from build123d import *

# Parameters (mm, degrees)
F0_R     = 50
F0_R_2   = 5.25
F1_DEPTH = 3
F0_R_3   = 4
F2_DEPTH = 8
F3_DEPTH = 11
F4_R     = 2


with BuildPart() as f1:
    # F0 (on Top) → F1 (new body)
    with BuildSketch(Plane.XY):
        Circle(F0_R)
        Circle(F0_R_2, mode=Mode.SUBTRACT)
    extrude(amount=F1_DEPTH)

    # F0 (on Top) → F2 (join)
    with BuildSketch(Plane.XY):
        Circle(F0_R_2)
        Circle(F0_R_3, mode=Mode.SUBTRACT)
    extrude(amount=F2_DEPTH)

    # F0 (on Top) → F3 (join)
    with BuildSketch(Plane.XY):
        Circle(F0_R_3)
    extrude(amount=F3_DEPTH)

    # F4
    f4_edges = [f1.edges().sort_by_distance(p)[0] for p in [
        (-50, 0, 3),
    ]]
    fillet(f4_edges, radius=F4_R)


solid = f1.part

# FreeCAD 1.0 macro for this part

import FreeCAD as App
import Part
import Sketcher
from FreeCAD import Vector
Q = App.Units.Quantity


def edges_at(feature, points):
    """Names of the edges that pass closest to the given points."""
    edges = feature.Shape.Edges
    near = lambda p: min(range(len(edges)), key=lambda i: edges[i].distToShape(Part.Vertex(*p))[0])
    return sorted({f"Edge{near(p) + 1}" for p in points})

doc = App.newDocument("Part")
body = doc.addObject("PartDesign::Body", "Body")

# Sketch on XY plane
sketch1 = doc.addObject("Sketcher::SketchObject", "Sketch")
body.addObject(sketch1)
sketch1.AttachmentSupport = (doc.XY_Plane, [""])
sketch1.MapMode = "FlatFace"
sketch1.addGeometry([
    Part.Circle(Vector(0, 0, 0), Vector(0, 0, 1), 50),
    Part.Circle(Vector(0, 0, 0), Vector(0, 0, 1), 5.25),
], False)
sketch1.addConstraint([
    Sketcher.Constraint("Coincident", 0, 3, -1, 1),
    Sketcher.Constraint("Coincident", 1, 3, -1, 1),
    Sketcher.Constraint("Diameter", 0, Q("100 mm")),
    Sketcher.Constraint("Diameter", 1, Q("10.5 mm")),
])
pad1 = doc.addObject("PartDesign::Pad", "Pad")
body.addObject(pad1)
pad1.Profile = sketch1
pad1.Length = 3

# Sketch on XY plane
sketch2 = doc.addObject("Sketcher::SketchObject", "Sketch001")
body.addObject(sketch2)
sketch2.AttachmentSupport = (doc.XY_Plane, [""])
sketch2.MapMode = "FlatFace"
sketch2.addGeometry([
    Part.Circle(Vector(0, 0, 0), Vector(0, 0, 1), 5.25),
    Part.Circle(Vector(0, 0, 0), Vector(0, 0, 1), 4),
], False)
sketch2.addConstraint([
    Sketcher.Constraint("Coincident", 0, 3, -1, 1),
    Sketcher.Constraint("Coincident", 1, 3, -1, 1),
    Sketcher.Constraint("Diameter", 1, Q("8 mm")),
    Sketcher.Constraint("Diameter", 0, Q("10.5 mm")),
])
pad2 = doc.addObject("PartDesign::Pad", "Pad001")
body.addObject(pad2)
pad2.Profile = sketch2
pad2.Length = 8

# Sketch on XY plane
sketch3 = doc.addObject("Sketcher::SketchObject", "Sketch002")
body.addObject(sketch3)
sketch3.AttachmentSupport = (doc.XY_Plane, [""])
sketch3.MapMode = "FlatFace"
sketch3.addGeometry(Part.Circle(Vector(0, 0, 0), Vector(0, 0, 1), 4), False)
sketch3.addConstraint([
    Sketcher.Constraint("Coincident", 0, 3, -1, 1),
    Sketcher.Constraint("Diameter", 0, Q("8 mm")),
])
pad3 = doc.addObject("PartDesign::Pad", "Pad002")
body.addObject(pad3)
pad3.Profile = sketch3
pad3.Length = 11
doc.recompute()

fillet = doc.addObject("PartDesign::Fillet", "Fillet")
body.addObject(fillet)
fillet.Base = (pad3, edges_at(pad3, [(-50, 0, 3)]))
fillet.Radius = 2

doc.recompute()
